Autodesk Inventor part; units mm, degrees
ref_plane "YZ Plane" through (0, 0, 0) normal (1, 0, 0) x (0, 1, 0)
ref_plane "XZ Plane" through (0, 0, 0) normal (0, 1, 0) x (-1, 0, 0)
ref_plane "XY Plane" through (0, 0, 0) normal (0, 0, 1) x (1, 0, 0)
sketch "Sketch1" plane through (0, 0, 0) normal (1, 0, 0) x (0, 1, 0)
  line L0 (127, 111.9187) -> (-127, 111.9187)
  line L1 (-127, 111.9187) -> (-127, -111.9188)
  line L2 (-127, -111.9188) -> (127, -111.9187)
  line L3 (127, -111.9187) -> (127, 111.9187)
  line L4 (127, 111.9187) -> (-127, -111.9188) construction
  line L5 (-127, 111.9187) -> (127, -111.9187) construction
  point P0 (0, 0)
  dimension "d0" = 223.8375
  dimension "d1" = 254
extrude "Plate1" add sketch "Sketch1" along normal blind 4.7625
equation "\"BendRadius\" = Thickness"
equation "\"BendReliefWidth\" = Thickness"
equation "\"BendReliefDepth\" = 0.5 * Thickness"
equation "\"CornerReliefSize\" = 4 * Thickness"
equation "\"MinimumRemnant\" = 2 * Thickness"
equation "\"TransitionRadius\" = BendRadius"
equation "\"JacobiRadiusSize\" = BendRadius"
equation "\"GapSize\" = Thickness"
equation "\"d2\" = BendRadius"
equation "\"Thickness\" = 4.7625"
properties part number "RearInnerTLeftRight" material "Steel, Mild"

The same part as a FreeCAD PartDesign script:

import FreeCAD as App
import Part
import Sketcher
from FreeCAD import Vector
Q = App.Units.Quantity

doc = App.newDocument("Part")
body = doc.addObject("PartDesign::Body", "Body")

sketch1 = doc.addObject("Sketcher::SketchObject", "Sketch")
body.addObject(sketch1)
sketch1.AttachmentSupport = (doc.YZ_Plane, [""])
sketch1.MapMode = "FlatFace"
sketch1.addGeometry([
    Part.LineSegment(Vector(127, -111.9187, 0), Vector(127, 111.9187, 0)),
    Part.LineSegment(Vector(127, 111.9187, 0), Vector(-127, 111.9187, 0)),
    Part.LineSegment(Vector(-127, 111.9187, 0), Vector(-127, -111.9188, 0)),
    Part.LineSegment(Vector(-127, -111.9188, 0), Vector(127, -111.9187, 0)),
], False)
sketch1.addConstraint([
    Sketcher.Constraint("Coincident", 0, 2, 1, 1),
    Sketcher.Constraint("Coincident", 1, 2, 2, 1),
    Sketcher.Constraint("Coincident", 2, 2, 3, 1),
    Sketcher.Constraint("Coincident", 3, 2, 0, 1),
    Sketcher.Constraint("Vertical", 0),
    Sketcher.Constraint("Horizontal", 1),
    Sketcher.Constraint("Vertical", 2),
    Sketcher.Constraint("Horizontal", 3),
    Sketcher.Constraint("Symmetric", 0, 2, 2, 2, -1, 1),
    Sketcher.Constraint("DistanceX", 1, 2, 1, 1, Q("10 in")),
    Sketcher.Constraint("DistanceY", 0, 1, 0, 2, Q("8.8125 in")),
])
pad1 = doc.addObject("PartDesign::Pad", "Pad")
body.addObject(pad1)
pad1.Profile = sketch1
pad1.Length = Q("0.1875 in")

doc.recompute()
